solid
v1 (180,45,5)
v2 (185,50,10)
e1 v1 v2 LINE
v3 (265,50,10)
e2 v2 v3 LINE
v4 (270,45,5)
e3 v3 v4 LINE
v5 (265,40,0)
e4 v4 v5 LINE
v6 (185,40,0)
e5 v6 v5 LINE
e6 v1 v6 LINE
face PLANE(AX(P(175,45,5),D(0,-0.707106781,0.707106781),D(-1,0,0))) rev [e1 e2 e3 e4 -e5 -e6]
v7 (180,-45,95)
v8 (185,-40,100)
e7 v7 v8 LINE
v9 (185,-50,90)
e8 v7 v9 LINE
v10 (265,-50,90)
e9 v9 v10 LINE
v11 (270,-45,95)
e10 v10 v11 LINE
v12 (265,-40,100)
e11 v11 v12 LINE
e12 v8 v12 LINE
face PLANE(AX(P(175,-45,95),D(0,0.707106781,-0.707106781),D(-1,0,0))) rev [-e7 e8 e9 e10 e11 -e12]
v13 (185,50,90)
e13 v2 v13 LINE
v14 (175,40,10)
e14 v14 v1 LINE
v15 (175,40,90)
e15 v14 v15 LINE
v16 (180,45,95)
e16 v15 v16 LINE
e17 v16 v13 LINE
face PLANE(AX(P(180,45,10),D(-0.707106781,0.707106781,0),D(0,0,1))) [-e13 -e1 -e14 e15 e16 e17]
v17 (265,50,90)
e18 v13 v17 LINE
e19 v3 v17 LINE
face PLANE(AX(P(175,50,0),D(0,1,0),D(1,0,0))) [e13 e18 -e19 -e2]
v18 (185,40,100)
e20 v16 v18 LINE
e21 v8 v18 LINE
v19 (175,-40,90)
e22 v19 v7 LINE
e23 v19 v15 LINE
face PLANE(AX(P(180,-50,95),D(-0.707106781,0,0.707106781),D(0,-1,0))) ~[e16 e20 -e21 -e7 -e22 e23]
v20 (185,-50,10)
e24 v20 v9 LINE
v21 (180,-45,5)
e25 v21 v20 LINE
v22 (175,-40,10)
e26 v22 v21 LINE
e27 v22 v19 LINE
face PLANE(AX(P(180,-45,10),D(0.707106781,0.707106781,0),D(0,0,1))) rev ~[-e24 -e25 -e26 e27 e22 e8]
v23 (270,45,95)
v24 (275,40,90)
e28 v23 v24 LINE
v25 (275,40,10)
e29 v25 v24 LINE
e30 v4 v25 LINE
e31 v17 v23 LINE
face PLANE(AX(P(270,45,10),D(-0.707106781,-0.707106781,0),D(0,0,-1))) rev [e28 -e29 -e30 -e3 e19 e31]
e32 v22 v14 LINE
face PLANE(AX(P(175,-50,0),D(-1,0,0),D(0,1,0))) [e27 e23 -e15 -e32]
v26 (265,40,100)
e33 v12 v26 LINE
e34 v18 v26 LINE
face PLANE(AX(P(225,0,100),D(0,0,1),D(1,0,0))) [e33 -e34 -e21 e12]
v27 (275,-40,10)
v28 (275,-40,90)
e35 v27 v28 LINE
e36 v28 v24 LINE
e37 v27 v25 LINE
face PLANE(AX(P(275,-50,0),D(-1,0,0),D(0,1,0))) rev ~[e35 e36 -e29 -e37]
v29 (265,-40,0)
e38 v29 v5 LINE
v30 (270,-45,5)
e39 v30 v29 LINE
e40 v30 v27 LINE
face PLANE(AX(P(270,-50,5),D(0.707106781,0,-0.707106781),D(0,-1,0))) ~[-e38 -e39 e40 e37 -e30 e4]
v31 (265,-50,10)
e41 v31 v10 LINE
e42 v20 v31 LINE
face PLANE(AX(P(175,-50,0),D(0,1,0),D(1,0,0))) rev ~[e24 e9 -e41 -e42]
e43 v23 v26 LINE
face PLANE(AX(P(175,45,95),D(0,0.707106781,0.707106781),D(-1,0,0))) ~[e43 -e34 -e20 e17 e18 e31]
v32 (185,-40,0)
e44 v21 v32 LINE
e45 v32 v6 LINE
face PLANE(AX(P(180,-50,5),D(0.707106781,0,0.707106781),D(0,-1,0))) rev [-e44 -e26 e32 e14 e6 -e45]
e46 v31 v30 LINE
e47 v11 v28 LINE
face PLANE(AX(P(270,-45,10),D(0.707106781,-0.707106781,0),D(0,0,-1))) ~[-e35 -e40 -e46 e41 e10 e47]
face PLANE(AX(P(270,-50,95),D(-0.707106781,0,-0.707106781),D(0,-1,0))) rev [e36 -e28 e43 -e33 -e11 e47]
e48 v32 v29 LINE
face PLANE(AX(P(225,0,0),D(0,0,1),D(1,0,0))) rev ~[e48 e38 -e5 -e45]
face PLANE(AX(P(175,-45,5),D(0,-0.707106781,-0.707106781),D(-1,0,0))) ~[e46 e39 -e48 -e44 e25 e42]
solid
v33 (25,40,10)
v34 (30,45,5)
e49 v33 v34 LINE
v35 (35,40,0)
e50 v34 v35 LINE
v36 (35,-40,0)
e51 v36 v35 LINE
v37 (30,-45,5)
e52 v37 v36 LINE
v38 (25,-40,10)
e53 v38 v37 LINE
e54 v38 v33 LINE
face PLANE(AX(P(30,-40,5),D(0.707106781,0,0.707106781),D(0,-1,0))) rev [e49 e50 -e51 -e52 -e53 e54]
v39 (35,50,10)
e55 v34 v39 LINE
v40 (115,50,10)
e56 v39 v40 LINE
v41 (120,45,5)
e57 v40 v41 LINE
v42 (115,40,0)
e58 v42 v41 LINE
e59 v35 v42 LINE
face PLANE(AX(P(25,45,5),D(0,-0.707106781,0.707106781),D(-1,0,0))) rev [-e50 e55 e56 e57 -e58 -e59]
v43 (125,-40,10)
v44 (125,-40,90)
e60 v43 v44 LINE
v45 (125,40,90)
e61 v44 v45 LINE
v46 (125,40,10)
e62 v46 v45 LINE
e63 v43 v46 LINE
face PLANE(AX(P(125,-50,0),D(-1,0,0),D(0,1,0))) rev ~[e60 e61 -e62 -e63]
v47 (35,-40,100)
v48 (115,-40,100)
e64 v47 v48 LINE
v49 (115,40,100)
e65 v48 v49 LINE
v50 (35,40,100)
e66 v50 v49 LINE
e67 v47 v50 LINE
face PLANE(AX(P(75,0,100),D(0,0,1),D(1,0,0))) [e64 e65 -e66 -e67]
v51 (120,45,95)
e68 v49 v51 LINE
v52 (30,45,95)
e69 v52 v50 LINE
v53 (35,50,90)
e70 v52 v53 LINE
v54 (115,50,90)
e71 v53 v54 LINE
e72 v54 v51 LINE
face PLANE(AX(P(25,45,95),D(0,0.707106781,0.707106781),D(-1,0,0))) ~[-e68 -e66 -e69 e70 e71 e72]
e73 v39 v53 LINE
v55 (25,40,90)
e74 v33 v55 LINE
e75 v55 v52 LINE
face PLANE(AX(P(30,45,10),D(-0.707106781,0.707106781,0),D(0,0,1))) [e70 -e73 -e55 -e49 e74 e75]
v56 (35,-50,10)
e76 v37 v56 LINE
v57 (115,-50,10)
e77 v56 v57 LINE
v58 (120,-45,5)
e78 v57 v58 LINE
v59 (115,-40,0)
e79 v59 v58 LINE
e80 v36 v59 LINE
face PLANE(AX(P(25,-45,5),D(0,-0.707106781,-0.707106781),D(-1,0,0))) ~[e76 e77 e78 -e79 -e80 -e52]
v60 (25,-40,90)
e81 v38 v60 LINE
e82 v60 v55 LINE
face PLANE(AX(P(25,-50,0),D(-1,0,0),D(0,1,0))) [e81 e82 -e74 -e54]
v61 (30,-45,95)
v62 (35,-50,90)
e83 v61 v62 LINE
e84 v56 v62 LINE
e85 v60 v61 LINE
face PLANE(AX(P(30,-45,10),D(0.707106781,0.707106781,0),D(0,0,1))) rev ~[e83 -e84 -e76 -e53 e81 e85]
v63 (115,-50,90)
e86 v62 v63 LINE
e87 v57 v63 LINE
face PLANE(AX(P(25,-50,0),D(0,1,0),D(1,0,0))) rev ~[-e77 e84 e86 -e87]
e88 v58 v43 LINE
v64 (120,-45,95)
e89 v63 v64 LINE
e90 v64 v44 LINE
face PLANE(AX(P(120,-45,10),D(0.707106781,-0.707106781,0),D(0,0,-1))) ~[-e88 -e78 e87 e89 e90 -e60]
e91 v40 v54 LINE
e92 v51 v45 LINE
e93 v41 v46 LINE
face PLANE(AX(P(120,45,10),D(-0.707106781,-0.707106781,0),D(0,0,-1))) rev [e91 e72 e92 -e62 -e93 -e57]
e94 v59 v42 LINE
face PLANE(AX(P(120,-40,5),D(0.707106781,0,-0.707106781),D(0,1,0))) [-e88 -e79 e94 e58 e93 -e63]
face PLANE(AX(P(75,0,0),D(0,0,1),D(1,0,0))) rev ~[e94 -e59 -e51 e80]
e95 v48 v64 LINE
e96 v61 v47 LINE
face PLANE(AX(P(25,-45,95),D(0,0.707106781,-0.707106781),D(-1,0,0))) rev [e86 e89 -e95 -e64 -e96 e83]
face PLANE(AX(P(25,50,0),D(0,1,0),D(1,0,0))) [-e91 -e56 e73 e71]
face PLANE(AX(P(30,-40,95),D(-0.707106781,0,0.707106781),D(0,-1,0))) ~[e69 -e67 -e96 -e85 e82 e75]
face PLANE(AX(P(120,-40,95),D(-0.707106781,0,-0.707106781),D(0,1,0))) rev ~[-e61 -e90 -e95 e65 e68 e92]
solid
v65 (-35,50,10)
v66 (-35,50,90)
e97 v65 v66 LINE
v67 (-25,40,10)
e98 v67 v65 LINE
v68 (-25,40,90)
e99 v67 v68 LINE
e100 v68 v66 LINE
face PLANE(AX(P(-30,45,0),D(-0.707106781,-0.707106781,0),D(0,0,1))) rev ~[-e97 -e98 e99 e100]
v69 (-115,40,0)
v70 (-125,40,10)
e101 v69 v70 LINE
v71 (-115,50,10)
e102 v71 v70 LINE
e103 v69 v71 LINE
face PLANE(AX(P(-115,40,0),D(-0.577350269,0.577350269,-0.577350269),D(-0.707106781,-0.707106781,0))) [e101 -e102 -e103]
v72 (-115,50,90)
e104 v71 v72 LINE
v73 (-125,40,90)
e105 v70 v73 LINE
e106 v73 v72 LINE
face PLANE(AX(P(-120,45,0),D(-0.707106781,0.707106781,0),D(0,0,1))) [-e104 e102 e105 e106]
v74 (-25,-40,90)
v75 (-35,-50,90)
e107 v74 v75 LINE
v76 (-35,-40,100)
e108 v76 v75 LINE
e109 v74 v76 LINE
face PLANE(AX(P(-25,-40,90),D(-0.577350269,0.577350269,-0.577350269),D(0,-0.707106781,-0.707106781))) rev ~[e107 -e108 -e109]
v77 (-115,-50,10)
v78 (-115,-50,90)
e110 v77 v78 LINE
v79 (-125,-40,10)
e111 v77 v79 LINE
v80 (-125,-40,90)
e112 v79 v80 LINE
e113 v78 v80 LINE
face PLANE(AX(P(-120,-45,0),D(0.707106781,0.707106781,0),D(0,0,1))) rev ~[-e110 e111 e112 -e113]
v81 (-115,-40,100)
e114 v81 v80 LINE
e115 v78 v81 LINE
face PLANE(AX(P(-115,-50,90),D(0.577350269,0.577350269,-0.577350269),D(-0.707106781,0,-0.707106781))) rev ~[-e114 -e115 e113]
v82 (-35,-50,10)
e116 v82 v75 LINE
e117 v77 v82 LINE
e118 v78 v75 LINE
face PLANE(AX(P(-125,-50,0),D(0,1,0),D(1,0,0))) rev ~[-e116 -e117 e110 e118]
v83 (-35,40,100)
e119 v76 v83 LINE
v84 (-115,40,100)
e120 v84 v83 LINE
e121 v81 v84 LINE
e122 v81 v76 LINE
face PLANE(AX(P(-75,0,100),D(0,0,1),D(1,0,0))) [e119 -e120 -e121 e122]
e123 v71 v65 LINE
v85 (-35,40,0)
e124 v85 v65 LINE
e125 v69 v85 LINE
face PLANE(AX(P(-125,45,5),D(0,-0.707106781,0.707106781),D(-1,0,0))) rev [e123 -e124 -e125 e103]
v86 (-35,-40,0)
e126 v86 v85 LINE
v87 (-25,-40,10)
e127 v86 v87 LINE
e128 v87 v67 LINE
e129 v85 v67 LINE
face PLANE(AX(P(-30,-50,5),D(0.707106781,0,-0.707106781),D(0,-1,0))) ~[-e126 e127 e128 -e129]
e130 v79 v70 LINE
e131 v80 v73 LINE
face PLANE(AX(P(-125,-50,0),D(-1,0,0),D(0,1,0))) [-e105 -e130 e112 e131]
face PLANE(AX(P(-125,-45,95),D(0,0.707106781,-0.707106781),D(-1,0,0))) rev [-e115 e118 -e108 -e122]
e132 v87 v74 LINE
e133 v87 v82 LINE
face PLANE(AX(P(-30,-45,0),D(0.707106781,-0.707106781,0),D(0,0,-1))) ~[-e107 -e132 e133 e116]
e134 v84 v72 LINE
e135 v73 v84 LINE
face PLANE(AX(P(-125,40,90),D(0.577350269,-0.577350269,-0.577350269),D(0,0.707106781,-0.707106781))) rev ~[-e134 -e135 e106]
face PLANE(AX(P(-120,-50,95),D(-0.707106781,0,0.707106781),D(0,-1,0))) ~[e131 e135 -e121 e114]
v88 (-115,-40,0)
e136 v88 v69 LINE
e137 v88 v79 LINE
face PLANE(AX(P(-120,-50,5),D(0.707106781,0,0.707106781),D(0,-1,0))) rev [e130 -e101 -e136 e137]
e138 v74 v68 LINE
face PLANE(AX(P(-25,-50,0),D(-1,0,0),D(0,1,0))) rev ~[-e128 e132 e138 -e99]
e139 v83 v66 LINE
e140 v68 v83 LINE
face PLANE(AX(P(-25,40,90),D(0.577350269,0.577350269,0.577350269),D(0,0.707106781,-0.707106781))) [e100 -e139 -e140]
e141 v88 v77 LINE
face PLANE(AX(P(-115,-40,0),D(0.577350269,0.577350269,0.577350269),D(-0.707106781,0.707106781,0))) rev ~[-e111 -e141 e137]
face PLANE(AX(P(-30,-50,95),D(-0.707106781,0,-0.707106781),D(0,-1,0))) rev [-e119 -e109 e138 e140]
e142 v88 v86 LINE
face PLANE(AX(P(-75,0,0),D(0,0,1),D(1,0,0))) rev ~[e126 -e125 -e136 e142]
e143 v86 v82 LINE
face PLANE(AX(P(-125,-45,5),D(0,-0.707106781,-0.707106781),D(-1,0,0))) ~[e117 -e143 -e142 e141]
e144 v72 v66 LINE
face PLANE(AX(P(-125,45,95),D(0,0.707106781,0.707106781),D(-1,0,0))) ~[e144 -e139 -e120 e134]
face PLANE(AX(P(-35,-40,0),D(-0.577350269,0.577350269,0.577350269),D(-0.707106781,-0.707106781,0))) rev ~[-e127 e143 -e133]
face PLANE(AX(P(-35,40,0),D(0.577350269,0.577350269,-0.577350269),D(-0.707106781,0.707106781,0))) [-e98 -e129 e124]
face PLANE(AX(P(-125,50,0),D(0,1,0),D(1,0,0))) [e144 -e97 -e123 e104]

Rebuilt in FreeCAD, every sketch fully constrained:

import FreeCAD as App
import Part
import Sketcher
Q = App.Units.Quantity


def edges_at(feature, points):
    """Names of the edges that pass closest to the given points."""
    edges = feature.Shape.Edges
    near = lambda p: min(range(len(edges)), key=lambda i: edges[i].distToShape(Part.Vertex(*p))[0])
    return sorted({f"Edge{near(p) + 1}" for p in points})


def add_polygon(sketch, points):
    """Adds a closed chain of lines whose ends are joined by coincident constraints."""
    first, n = sketch.GeometryCount, len(points)
    for a, b in zip(points, points[1:] + points[:1]):
        sketch.addGeometry(Part.LineSegment(App.Vector(*a, 0), App.Vector(*b, 0)), False)
    for i in range(n):
        sketch.addConstraint(Sketcher.Constraint("Coincident", first + i, 2, first + (i + 1) % n, 1))

doc = App.newDocument("Part")
params = doc.addObject("Spreadsheet::Sheet", "Params")
for row, (alias, value) in enumerate([
    ("sketch1_width", "100 mm"),
    ("pad1_length", "100 mm"),
    ("chamfer_size", "10 mm"),
    ("chamfer2_size", "10 mm"),
    ("chamfer3_size", "10 mm"),
    ("chamfer4_size", "10 mm"),
    ("chamfer5_size", "10 mm"),
    ("chamfer6_size", "10 mm"),
], start=1):
    params.set(f"A{row}", alias)
    params.set(f"B{row}", "=" + value)
    params.setAlias(f"B{row}", alias)

body = doc.addObject("PartDesign::Body", "Body")
body.AllowCompound = True

# Sketch on XY plane
sketch1 = body.newObject("Sketcher::SketchObject", "Sketch")
sketch1.AttachmentSupport = (doc.getObject("XY_Plane"), [""])
sketch1.MapMode = "FlatFace"
add_polygon(sketch1, [(-125, 50), (-125, -50), (-25, -50), (-25, 50)])  # lines 0-3
add_polygon(sketch1, [(25, 50), (25, -50), (125, -50), (125, 50)])  # lines 4-7
add_polygon(sketch1, [(175, 50), (175, -50), (275, -50), (275, 50)])  # lines 8-11
sketch1.addConstraint([
    Sketcher.Constraint("Vertical", 0),
    Sketcher.Constraint("Horizontal", 1),
    Sketcher.Constraint("Vertical", 2),
    Sketcher.Constraint("Horizontal", 3),
    Sketcher.Constraint("Vertical", 4),
    Sketcher.Constraint("Horizontal", 5),
    Sketcher.Constraint("Vertical", 6),
    Sketcher.Constraint("Horizontal", 7),
    Sketcher.Constraint("Vertical", 8),
    Sketcher.Constraint("Horizontal", 9),
    Sketcher.Constraint("Vertical", 10),
    Sketcher.Constraint("Horizontal", 11),
    Sketcher.Constraint("Symmetric", 2, 2, 4, 2, -1, 1),
    Sketcher.Constraint("Symmetric", 0, 2, 6, 2, -1, 1),
    Sketcher.Constraint("Horizontal", 1, 2, 4, 2),
    Sketcher.Constraint("Horizontal", 5, 2, 8, 2),
    Sketcher.Constraint("Horizontal", 7, 2, 10, 2),
    Sketcher.Constraint("Equal", 7, 9),
    Sketcher.Constraint("Equal", 11, 0),
    Sketcher.Constraint("DistanceX", 1, 1, 1, 2, Q("100 mm")),
    Sketcher.Constraint("DistanceX", 0, 2, -1, 1, Q("125 mm")),
    Sketcher.Constraint("DistanceX", -1, 1, 8, 2, Q("175 mm")),
])
sketch1.setExpression("Constraints[31]", "Params.sketch1_width")
pad1 = body.newObject("PartDesign::Pad", "Pad")
pad1.Profile = sketch1
pad1.setExpression("Length", "Params.pad1_length")
doc.recompute()

chamfer = body.newObject("PartDesign::Chamfer", "Chamfer")
chamfer.Base = (pad1, edges_at(pad1, [
    (-75, 50, 100),
    (-125, 0, 100),
    (-75, -50, 100),
    (-25, 0, 100),
    (-25, -50, 50),
    (-25, 50, 50),
    (-25, 0, 0),
    (-125, -50, 50),
    (-75, -50, 0),
    (-125, 50, 50),
    (-75, 50, 0),
    (-125, 0, 0),
]))
chamfer.setExpression("Size", "Params.chamfer_size")
doc.recompute()

chamfer2 = body.newObject("PartDesign::Chamfer", "Chamfer001")
chamfer2.Base = (chamfer, edges_at(chamfer, [
    (75, -50, 100),
    (75, 50, 100),
    (75, -50, 0),
    (75, 50, 0),
]))
chamfer2.setExpression("Size", "Params.chamfer2_size")
doc.recompute()

chamfer3 = body.newObject("PartDesign::Chamfer", "Chamfer002")
chamfer3.Base = (chamfer2, edges_at(chamfer2, [
    (25, 0, 100),
    (125, 0, 100),
    (125, 0, 0),
    (25, 0, 0),
]))
chamfer3.setExpression("Size", "Params.chamfer3_size")
doc.recompute()

chamfer4 = body.newObject("PartDesign::Chamfer", "Chamfer003")
chamfer4.Base = (chamfer3, edges_at(chamfer3, [
    (25, 50, 50),
    (25, -50, 50),
    (125, -50, 50),
    (125, 50, 50),
]))
chamfer4.setExpression("Size", "Params.chamfer4_size")
doc.recompute()

chamfer5 = body.newObject("PartDesign::Chamfer", "Chamfer004")
chamfer5.Base = (chamfer4, edges_at(chamfer4, [
    (225, 50, 100),
    (175, 0, 100),
    (225, -50, 100),
    (275, 0, 100),
    (225, 50, 0),
    (175, 0, 0),
    (225, -50, 0),
    (275, 0, 0),
]))
chamfer5.setExpression("Size", "Params.chamfer5_size")
doc.recompute()

chamfer6 = body.newObject("PartDesign::Chamfer", "Chamfer005")
chamfer6.Base = (chamfer5, edges_at(chamfer5, [
    (275, -50, 50),
    (175, -50, 50),
    (175, 50, 50),
    (275, 50, 50),
]))
chamfer6.setExpression("Size", "Params.chamfer6_size")

doc.recompute()
